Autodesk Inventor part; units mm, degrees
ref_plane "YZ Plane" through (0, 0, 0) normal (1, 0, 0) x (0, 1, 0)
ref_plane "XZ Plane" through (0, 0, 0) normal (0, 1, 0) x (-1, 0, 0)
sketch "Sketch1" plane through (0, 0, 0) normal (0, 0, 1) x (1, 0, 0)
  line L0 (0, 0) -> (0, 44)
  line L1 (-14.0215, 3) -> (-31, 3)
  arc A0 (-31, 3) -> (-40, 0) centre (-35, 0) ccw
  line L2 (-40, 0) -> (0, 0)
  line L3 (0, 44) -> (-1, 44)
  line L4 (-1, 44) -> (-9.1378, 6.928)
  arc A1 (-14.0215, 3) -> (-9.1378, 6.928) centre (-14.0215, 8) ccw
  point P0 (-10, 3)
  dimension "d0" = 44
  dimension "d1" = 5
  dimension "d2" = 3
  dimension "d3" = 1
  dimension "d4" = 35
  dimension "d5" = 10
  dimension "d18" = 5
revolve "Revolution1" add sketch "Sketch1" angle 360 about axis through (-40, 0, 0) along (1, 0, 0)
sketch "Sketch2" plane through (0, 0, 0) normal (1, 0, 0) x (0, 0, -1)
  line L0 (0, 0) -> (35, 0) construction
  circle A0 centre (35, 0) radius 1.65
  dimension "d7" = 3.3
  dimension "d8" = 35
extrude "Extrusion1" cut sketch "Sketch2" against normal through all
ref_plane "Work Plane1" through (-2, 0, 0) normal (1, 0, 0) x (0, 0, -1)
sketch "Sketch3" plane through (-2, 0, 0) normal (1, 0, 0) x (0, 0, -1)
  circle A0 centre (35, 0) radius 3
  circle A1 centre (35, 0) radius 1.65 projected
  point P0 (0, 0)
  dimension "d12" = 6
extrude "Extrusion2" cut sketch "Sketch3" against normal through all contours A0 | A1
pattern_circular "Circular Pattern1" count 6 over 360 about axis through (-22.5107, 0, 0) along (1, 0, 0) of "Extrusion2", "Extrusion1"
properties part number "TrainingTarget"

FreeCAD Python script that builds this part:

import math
import FreeCAD as App
import Part
import Sketcher
from FreeCAD import Vector
Q = App.Units.Quantity

doc = App.newDocument("Part")
body = doc.addObject("PartDesign::Body", "Body")

# Sketch on XY plane
sketch1 = doc.addObject("Sketcher::SketchObject", "Sketch")
body.addObject(sketch1)
sketch1.AttachmentSupport = (doc.XY_Plane, [""])
sketch1.MapMode = "FlatFace"
sketch1.addGeometry([
    Part.LineSegment(Vector(-40, 0, 0), Vector(0, 0, 0)),  # 0
    Part.LineSegment(Vector(0, 0, 0), Vector(0, 44, 0)),  # 1
    Part.LineSegment(Vector(0, 44, 0), Vector(-1, 44, 0)),  # 2
    Part.LineSegment(Vector(-1, 44, 0), Vector(-9.1378, 6.928, 0)),  # 3
    Part.ArcOfCircle(Part.Circle(Vector(-14.0215, 8, 0), Vector(0, 0, 1), 5), math.radians(-90), math.radians(-12.380402)),  # 4
    Part.LineSegment(Vector(-14.0215, 3, 0), Vector(-31, 3, 0)),  # 5
    Part.ArcOfCircle(Part.Circle(Vector(-35, 0, 0), Vector(0, 0, 1), 5), math.radians(36.869898), math.radians(180)),  # 6
], False)
sketch1.addConstraint([
    Sketcher.Constraint("Coincident", 0, 2, 1, 1),
    Sketcher.Constraint("Coincident", 1, 2, 2, 1),
    Sketcher.Constraint("Coincident", 2, 2, 3, 1),
    Sketcher.Constraint("Tangent", 3, 2, 4, 2),
    Sketcher.Constraint("Tangent", 4, 1, 5, 1),
    Sketcher.Constraint("Coincident", 5, 2, 6, 1),
    Sketcher.Constraint("Coincident", 6, 2, 0, 1),
    Sketcher.Constraint("Horizontal", 0),
    Sketcher.Constraint("Vertical", 1),
    Sketcher.Constraint("Horizontal", 2),
    Sketcher.Constraint("Horizontal", 5),
    Sketcher.Constraint("Coincident", 0, 2, -1, 1),
    Sketcher.Constraint("Equal", 4, 6),
    Sketcher.Constraint("PointOnObject", 6, 3, -1),
    Sketcher.Constraint("Radius", 4, 5.0),
    Sketcher.Constraint("DistanceX", 2, 2, 2, 1, 1.0),
    Sketcher.Constraint("DistanceY", 1, 1, 1, 2, 44.0),
    Sketcher.Constraint("DistanceX", 6, 3, -1, 1, 35.0),
    Sketcher.Constraint("DistanceY", -1, 1, 4, 1, 3.0),
    Sketcher.Constraint("Angle", 3, Q("-102.3808 deg")),
])
revolution = doc.addObject("PartDesign::Revolution", "Revolution")
body.addObject(revolution)
revolution.Profile = sketch1
revolution.ReferenceAxis = (sketch1, ["H_Axis"])
revolution.Angle = 360

# Sketch on YZ plane
sketch2 = doc.addObject("Sketcher::SketchObject", "Sketch001")
body.addObject(sketch2)
sketch2.AttachmentSupport = (doc.YZ_Plane, [""])
sketch2.MapMode = "FlatFace"
sketch2.addGeometry(Part.Circle(Vector(0, -35, 0), Vector(0, 0, 1), 1.65), False)
sketch2.addConstraint([
    Sketcher.Constraint("PointOnObject", 0, 3, -2),
    Sketcher.Constraint("Diameter", 0, 3.3),
    Sketcher.Constraint("DistanceY", 0, 3, -1, 1, 35.0),
])
pocket1 = doc.addObject("PartDesign::Pocket", "Pocket")
body.addObject(pocket1)
pocket1.Profile = sketch2
pocket1.Type = "ThroughAll"

# Sketch on YZ plane
sketch3 = doc.addObject("Sketcher::SketchObject", "Sketch002")
body.addObject(sketch3)
sketch3.AttachmentSupport = (doc.YZ_Plane, [""])
sketch3.MapMode = "FlatFace"
sketch3.AttachmentOffset = App.Placement(Vector(0, 0, -2), App.Rotation())
sketch3.addGeometry(Part.Circle(Vector(0, -35, 0), Vector(0, 0, 1), 3), False)
sketch3.addConstraint([
    Sketcher.Constraint("PointOnObject", 0, 3, -2),
    Sketcher.Constraint("Diameter", 0, 6.0),
    Sketcher.Constraint("DistanceY", 0, 3, -1, 1, 35.0),
])
pocket2 = doc.addObject("PartDesign::Pocket", "Pocket001")
body.addObject(pocket2)
pocket2.Profile = sketch3
pocket2.Type = "ThroughAll"
doc.recompute()

polarpattern = doc.addObject("PartDesign::PolarPattern", "PolarPattern")
body.addObject(polarpattern)
polarpattern.Originals = [pocket2, pocket1]
polarpattern.Axis = (doc.X_Axis, [""])
polarpattern.Angle = 360
polarpattern.Occurrences = 6
body.Tip = polarpattern

doc.recompute()
